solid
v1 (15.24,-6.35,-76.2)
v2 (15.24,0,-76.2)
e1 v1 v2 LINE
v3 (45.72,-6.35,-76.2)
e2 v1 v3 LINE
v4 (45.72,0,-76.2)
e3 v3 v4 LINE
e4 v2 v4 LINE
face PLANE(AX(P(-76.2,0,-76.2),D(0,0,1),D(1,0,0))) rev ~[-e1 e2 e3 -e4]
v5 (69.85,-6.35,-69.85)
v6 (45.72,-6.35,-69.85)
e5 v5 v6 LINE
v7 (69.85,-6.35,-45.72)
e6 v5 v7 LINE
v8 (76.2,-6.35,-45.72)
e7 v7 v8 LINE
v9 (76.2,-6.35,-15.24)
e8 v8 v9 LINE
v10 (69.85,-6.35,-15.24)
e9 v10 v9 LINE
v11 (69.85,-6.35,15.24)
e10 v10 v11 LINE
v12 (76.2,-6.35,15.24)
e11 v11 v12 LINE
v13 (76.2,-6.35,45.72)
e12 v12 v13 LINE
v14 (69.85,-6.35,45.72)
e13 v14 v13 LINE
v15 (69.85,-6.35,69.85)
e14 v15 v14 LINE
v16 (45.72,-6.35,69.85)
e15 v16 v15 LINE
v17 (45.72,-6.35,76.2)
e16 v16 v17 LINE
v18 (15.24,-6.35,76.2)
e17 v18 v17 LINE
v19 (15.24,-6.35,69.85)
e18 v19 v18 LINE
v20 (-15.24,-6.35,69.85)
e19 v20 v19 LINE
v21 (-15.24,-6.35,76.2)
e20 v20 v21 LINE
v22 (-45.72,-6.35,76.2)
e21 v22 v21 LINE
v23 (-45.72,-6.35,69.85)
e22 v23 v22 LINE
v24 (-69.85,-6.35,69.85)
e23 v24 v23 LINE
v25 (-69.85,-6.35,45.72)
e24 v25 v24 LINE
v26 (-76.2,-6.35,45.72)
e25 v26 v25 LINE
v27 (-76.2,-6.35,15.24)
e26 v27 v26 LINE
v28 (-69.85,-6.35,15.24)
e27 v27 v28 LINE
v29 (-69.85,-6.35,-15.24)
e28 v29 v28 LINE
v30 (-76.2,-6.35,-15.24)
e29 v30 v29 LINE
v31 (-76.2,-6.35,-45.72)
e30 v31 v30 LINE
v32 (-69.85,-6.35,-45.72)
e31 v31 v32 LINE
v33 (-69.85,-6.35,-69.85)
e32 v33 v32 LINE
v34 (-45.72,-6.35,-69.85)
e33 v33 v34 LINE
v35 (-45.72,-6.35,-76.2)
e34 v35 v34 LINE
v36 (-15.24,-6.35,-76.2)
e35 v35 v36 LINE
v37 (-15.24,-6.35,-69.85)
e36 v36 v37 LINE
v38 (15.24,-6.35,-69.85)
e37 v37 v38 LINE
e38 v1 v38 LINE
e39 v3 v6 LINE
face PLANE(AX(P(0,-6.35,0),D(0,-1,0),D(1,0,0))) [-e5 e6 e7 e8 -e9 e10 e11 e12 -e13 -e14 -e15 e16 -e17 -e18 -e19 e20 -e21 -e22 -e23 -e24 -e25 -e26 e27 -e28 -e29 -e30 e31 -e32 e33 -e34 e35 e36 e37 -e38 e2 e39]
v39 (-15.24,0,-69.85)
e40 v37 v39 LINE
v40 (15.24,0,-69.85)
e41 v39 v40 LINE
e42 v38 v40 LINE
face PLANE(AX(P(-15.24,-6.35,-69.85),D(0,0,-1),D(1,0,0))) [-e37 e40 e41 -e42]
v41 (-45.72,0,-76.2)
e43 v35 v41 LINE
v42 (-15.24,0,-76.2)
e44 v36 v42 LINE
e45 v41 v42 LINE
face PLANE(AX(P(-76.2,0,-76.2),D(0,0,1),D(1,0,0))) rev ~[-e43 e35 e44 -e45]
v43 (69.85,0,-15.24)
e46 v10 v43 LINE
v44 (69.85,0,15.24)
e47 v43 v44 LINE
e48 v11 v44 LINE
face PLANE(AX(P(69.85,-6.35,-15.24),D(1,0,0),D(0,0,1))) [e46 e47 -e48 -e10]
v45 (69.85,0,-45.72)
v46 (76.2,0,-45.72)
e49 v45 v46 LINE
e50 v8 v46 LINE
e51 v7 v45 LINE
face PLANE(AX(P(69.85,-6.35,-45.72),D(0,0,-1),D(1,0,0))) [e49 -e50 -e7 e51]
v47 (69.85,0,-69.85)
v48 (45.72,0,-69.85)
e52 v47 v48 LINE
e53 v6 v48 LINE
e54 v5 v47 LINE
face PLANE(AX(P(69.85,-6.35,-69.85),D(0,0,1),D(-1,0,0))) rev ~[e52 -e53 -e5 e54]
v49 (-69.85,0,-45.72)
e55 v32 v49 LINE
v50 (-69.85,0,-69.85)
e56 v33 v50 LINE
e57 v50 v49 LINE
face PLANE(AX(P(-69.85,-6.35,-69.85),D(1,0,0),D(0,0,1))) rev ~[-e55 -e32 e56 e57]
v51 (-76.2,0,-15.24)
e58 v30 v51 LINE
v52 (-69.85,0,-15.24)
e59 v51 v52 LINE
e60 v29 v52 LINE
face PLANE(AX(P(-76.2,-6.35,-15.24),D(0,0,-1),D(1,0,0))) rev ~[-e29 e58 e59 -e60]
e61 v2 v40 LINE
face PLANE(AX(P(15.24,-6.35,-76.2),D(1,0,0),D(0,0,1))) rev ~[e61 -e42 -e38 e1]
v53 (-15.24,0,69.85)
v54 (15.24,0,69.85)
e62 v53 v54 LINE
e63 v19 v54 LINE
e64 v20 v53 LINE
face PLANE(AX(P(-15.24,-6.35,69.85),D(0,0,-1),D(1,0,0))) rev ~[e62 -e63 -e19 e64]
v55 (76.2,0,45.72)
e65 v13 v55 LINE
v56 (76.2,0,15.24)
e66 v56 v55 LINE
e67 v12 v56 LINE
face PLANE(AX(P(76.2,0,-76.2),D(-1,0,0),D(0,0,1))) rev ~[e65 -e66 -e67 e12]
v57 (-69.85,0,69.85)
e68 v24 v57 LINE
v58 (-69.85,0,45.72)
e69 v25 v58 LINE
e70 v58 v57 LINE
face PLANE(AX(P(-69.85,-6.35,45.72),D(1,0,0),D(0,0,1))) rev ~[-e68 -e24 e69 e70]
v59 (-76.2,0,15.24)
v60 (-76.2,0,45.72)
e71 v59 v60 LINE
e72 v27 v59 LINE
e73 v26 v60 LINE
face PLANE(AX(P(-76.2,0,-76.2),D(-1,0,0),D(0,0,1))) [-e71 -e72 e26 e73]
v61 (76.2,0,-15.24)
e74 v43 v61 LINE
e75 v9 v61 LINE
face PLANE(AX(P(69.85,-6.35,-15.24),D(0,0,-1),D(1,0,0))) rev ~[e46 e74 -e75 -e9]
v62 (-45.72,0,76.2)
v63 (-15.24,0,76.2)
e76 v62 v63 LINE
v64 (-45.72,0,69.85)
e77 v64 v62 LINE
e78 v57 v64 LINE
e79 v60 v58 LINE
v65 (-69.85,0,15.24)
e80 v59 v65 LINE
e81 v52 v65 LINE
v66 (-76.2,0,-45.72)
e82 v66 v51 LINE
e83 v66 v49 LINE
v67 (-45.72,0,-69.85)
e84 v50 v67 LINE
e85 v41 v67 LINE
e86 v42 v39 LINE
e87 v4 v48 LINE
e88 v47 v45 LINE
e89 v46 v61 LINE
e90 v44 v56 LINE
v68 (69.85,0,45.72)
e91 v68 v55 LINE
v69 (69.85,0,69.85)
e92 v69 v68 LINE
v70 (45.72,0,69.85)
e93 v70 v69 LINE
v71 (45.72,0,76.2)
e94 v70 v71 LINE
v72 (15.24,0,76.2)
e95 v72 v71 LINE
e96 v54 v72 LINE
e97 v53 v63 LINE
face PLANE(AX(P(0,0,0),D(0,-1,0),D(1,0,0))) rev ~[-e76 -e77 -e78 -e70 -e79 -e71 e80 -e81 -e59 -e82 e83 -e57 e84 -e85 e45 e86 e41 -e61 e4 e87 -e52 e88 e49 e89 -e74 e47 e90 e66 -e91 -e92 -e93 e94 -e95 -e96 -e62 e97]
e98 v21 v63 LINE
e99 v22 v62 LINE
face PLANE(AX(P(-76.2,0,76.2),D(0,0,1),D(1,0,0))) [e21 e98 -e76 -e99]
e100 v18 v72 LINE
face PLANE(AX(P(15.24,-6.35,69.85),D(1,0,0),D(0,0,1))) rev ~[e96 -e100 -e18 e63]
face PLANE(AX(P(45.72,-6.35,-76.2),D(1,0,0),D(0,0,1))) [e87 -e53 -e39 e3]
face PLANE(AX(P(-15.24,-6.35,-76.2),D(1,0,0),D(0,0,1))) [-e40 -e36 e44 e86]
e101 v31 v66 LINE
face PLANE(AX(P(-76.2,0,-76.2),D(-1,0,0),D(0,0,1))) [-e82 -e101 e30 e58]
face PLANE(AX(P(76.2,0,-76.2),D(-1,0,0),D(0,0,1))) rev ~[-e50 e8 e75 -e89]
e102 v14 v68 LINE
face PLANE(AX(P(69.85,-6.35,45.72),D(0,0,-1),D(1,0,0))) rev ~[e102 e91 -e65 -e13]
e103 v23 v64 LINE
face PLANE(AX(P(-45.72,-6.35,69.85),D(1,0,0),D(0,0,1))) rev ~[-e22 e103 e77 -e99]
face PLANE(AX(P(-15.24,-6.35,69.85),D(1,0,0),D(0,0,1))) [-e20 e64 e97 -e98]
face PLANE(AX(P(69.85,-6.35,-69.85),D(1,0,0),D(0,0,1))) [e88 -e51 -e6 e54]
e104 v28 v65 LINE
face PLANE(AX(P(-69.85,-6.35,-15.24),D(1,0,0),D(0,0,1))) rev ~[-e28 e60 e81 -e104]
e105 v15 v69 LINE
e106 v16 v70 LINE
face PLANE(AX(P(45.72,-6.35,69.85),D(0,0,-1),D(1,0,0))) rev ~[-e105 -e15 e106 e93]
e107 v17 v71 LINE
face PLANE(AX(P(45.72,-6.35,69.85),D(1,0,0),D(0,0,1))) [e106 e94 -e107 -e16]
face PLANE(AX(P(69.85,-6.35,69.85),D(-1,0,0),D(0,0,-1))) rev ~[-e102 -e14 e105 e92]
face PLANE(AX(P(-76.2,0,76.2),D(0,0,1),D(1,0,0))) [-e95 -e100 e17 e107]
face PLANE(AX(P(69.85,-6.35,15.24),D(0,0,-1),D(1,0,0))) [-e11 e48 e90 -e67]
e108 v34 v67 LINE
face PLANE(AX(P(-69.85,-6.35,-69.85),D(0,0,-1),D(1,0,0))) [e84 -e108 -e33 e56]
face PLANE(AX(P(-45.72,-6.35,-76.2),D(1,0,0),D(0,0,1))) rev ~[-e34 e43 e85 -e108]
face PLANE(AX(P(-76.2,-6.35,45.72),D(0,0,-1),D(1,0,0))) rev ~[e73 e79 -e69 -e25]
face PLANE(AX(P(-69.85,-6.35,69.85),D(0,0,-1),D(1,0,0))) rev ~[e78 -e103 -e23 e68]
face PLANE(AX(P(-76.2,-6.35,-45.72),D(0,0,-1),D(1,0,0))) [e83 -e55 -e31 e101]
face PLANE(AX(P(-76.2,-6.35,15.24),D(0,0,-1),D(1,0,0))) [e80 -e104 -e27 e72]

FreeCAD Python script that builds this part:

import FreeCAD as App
import Part
import Sketcher
Q = App.Units.Quantity

doc = App.newDocument("Part")
body = doc.addObject("PartDesign::Body", "Body")

# Sketch on XZ plane
sketch1 = doc.addObject("Sketcher::SketchObject", "Sketch")
body.addObject(sketch1)
sketch1.AttachmentSupport = (doc.XZ_Plane, [""])
sketch1.MapMode = "FlatFace"
sketch1.addGeometry([
    Part.LineSegment(App.Vector(-76.2, 76.2, 0), App.Vector(-76.2, -76.2, 0)),
    Part.LineSegment(App.Vector(-76.2, -76.2, 0), App.Vector(76.2, -76.2, 0)),
    Part.LineSegment(App.Vector(76.2, -76.2, 0), App.Vector(76.2, 76.2, 0)),
    Part.LineSegment(App.Vector(76.2, 76.2, 0), App.Vector(-76.2, 76.2, 0)),
], False)
sketch1.addConstraint([
    Sketcher.Constraint("Coincident", 0, 2, 1, 1),
    Sketcher.Constraint("Coincident", 1, 2, 2, 1),
    Sketcher.Constraint("Coincident", 2, 2, 3, 1),
    Sketcher.Constraint("Coincident", 3, 2, 0, 1),
    Sketcher.Constraint("Vertical", 0),
    Sketcher.Constraint("Horizontal", 1),
    Sketcher.Constraint("Vertical", 2),
    Sketcher.Constraint("Horizontal", 3),
    Sketcher.Constraint("Symmetric", 0, 2, 2, 2, -1, 1),
    Sketcher.Constraint("Equal", 3, 0),
    Sketcher.Constraint("DistanceX", 1, 1, 1, 2, Q("6 in")),
])
pad1 = doc.addObject("PartDesign::Pad", "Pad")
body.addObject(pad1)
pad1.Profile = sketch1
pad1.Length = Q("0.25 in")

# Sketch on XZ plane
sketch2 = doc.addObject("Sketcher::SketchObject", "Sketch001")
body.addObject(sketch2)
sketch2.AttachmentSupport = (doc.XZ_Plane, [""])
sketch2.MapMode = "FlatFace"
sketch2.AttachmentOffset = App.Placement(App.Vector(0, 0, 0.25 * 25.4), App.Rotation())
sketch2.addGeometry([
    Part.LineSegment(App.Vector(-45.72, 69.85, 0), App.Vector(-45.72, 76.2, 0)),  # 0
    Part.LineSegment(App.Vector(-45.72, 76.2, 0), App.Vector(-76.2, 76.2, 0)),  # 1
    Part.LineSegment(App.Vector(-76.2, 76.2, 0), App.Vector(-76.2, 45.72, 0)),  # 2
    Part.LineSegment(App.Vector(-76.2, 45.72, 0), App.Vector(-69.85, 45.72, 0)),  # 3
    Part.LineSegment(App.Vector(-69.85, 45.72, 0), App.Vector(-69.85, 69.85, 0)),  # 4
    Part.LineSegment(App.Vector(-69.85, 69.85, 0), App.Vector(-45.72, 69.85, 0)),  # 5
    Part.LineSegment(App.Vector(-76.2, 15.24, 0), App.Vector(-76.2, -15.24, 0)),  # 6
    Part.LineSegment(App.Vector(-76.2, -15.24, 0), App.Vector(-69.85, -15.24, 0)),  # 7
    Part.LineSegment(App.Vector(-69.85, -15.24, 0), App.Vector(-69.85, 15.24, 0)),  # 8
    Part.LineSegment(App.Vector(-69.85, 15.24, 0), App.Vector(-76.2, 15.24, 0)),  # 9
    Part.LineSegment(App.Vector(-76.2, -45.72, 0), App.Vector(-76.2, -76.2, 0)),  # 10
    Part.LineSegment(App.Vector(-76.2, -76.2, 0), App.Vector(-45.72, -76.2, 0)),  # 11
    Part.LineSegment(App.Vector(-45.72, -76.2, 0), App.Vector(-45.72, -69.85, 0)),  # 12
    Part.LineSegment(App.Vector(-45.72, -69.85, 0), App.Vector(-69.85, -69.85, 0)),  # 13
    Part.LineSegment(App.Vector(-69.85, -69.85, 0), App.Vector(-69.85, -45.72, 0)),  # 14
    Part.LineSegment(App.Vector(-69.85, -45.72, 0), App.Vector(-76.2, -45.72, 0)),  # 15
    Part.LineSegment(App.Vector(-15.24, -69.85, 0), App.Vector(-15.24, -76.2, 0)),  # 16
    Part.LineSegment(App.Vector(-15.24, -76.2, 0), App.Vector(15.24, -76.2, 0)),  # 17
    Part.LineSegment(App.Vector(15.24, -76.2, 0), App.Vector(15.24, -69.85, 0)),  # 18
    Part.LineSegment(App.Vector(15.24, -69.85, 0), App.Vector(-15.24, -69.85, 0)),  # 19
    Part.LineSegment(App.Vector(45.72, -69.85, 0), App.Vector(45.72, -76.2, 0)),  # 20
    Part.LineSegment(App.Vector(45.72, -76.2, 0), App.Vector(76.2, -76.2, 0)),  # 21
    Part.LineSegment(App.Vector(76.2, -76.2, 0), App.Vector(76.2, -45.72, 0)),  # 22
    Part.LineSegment(App.Vector(76.2, -45.72, 0), App.Vector(69.85, -45.72, 0)),  # 23
    Part.LineSegment(App.Vector(69.85, -45.72, 0), App.Vector(69.85, -69.85, 0)),  # 24
    Part.LineSegment(App.Vector(69.85, -69.85, 0), App.Vector(45.72, -69.85, 0)),  # 25
    Part.LineSegment(App.Vector(69.85, 15.24, 0), App.Vector(69.85, -15.24, 0)),  # 26
    Part.LineSegment(App.Vector(69.85, -15.24, 0), App.Vector(76.2, -15.24, 0)),  # 27
    Part.LineSegment(App.Vector(76.2, -15.24, 0), App.Vector(76.2, 15.24, 0)),  # 28
    Part.LineSegment(App.Vector(76.2, 15.24, 0), App.Vector(69.85, 15.24, 0)),  # 29
    Part.LineSegment(App.Vector(69.85, 45.72, 0), App.Vector(76.2, 45.72, 0)),  # 30
    Part.LineSegment(App.Vector(76.2, 45.72, 0), App.Vector(76.2, 76.2, 0)),  # 31
    Part.LineSegment(App.Vector(76.2, 76.2, 0), App.Vector(45.72, 76.2, 0)),  # 32
    Part.LineSegment(App.Vector(45.72, 76.2, 0), App.Vector(45.72, 69.85, 0)),  # 33
    Part.LineSegment(App.Vector(45.72, 69.85, 0), App.Vector(69.85, 69.85, 0)),  # 34
    Part.LineSegment(App.Vector(69.85, 69.85, 0), App.Vector(69.85, 45.72, 0)),  # 35
    Part.LineSegment(App.Vector(-15.24, 76.2, 0), App.Vector(-15.24, 69.85, 0)),  # 36
    Part.LineSegment(App.Vector(-15.24, 69.85, 0), App.Vector(15.24, 69.85, 0)),  # 37
    Part.LineSegment(App.Vector(15.24, 69.85, 0), App.Vector(15.24, 76.2, 0)),  # 38
    Part.LineSegment(App.Vector(15.24, 76.2, 0), App.Vector(-15.24, 76.2, 0)),  # 39
], False)
sketch2.addConstraint([
    Sketcher.Constraint("Coincident", 0, 2, 1, 1),
    Sketcher.Constraint("Coincident", 1, 2, 2, 1),
    Sketcher.Constraint("Coincident", 2, 2, 3, 1),
    Sketcher.Constraint("Coincident", 3, 2, 4, 1),
    Sketcher.Constraint("Coincident", 4, 2, 5, 1),
    Sketcher.Constraint("Coincident", 5, 2, 0, 1),
    Sketcher.Constraint("Coincident", 6, 2, 7, 1),
    Sketcher.Constraint("Coincident", 7, 2, 8, 1),
    Sketcher.Constraint("Coincident", 8, 2, 9, 1),
    Sketcher.Constraint("Coincident", 9, 2, 6, 1),
    Sketcher.Constraint("Coincident", 10, 2, 11, 1),
    Sketcher.Constraint("Coincident", 11, 2, 12, 1),
    Sketcher.Constraint("Coincident", 12, 2, 13, 1),
    Sketcher.Constraint("Coincident", 13, 2, 14, 1),
    Sketcher.Constraint("Coincident", 14, 2, 15, 1),
    Sketcher.Constraint("Coincident", 15, 2, 10, 1),
    Sketcher.Constraint("Coincident", 16, 2, 17, 1),
    Sketcher.Constraint("Coincident", 17, 2, 18, 1),
    Sketcher.Constraint("Coincident", 18, 2, 19, 1),
    Sketcher.Constraint("Coincident", 19, 2, 16, 1),
    Sketcher.Constraint("Coincident", 20, 2, 21, 1),
    Sketcher.Constraint("Coincident", 21, 2, 22, 1),
    Sketcher.Constraint("Coincident", 22, 2, 23, 1),
    Sketcher.Constraint("Coincident", 23, 2, 24, 1),
    Sketcher.Constraint("Coincident", 24, 2, 25, 1),
    Sketcher.Constraint("Coincident", 25, 2, 20, 1),
    Sketcher.Constraint("Coincident", 26, 2, 27, 1),
    Sketcher.Constraint("Coincident", 27, 2, 28, 1),
    Sketcher.Constraint("Coincident", 28, 2, 29, 1),
    Sketcher.Constraint("Coincident", 29, 2, 26, 1),
    Sketcher.Constraint("Coincident", 30, 2, 31, 1),
    Sketcher.Constraint("Coincident", 31, 2, 32, 1),
    Sketcher.Constraint("Coincident", 32, 2, 33, 1),
    Sketcher.Constraint("Coincident", 33, 2, 34, 1),
    Sketcher.Constraint("Coincident", 34, 2, 35, 1),
    Sketcher.Constraint("Coincident", 35, 2, 30, 1),
    Sketcher.Constraint("Coincident", 36, 2, 37, 1),
    Sketcher.Constraint("Coincident", 37, 2, 38, 1),
    Sketcher.Constraint("Coincident", 38, 2, 39, 1),
    Sketcher.Constraint("Coincident", 39, 2, 36, 1),
    Sketcher.Constraint("Vertical", 0),
    Sketcher.Constraint("Horizontal", 1),
    Sketcher.Constraint("Vertical", 2),
    Sketcher.Constraint("Horizontal", 3),
    Sketcher.Constraint("Vertical", 4),
    Sketcher.Constraint("Horizontal", 5),
    Sketcher.Constraint("Vertical", 6),
    Sketcher.Constraint("Horizontal", 7),
    Sketcher.Constraint("Vertical", 8),
    Sketcher.Constraint("Horizontal", 9),
    Sketcher.Constraint("Vertical", 10),
    Sketcher.Constraint("Horizontal", 11),
    Sketcher.Constraint("Vertical", 12),
    Sketcher.Constraint("Horizontal", 13),
    Sketcher.Constraint("Vertical", 14),
    Sketcher.Constraint("Horizontal", 15),
    Sketcher.Constraint("Vertical", 16),
    Sketcher.Constraint("Horizontal", 17),
    Sketcher.Constraint("Vertical", 18),
    Sketcher.Constraint("Horizontal", 19),
    Sketcher.Constraint("Vertical", 20),
    Sketcher.Constraint("Horizontal", 21),
    Sketcher.Constraint("Vertical", 22),
    Sketcher.Constraint("Horizontal", 23),
    Sketcher.Constraint("Vertical", 24),
    Sketcher.Constraint("Horizontal", 25),
    Sketcher.Constraint("Vertical", 26),
    Sketcher.Constraint("Horizontal", 27),
    Sketcher.Constraint("Vertical", 28),
    Sketcher.Constraint("Horizontal", 29),
    Sketcher.Constraint("Horizontal", 30),
    Sketcher.Constraint("Vertical", 31),
    Sketcher.Constraint("Horizontal", 32),
    Sketcher.Constraint("Vertical", 33),
    Sketcher.Constraint("Horizontal", 34),
    Sketcher.Constraint("Vertical", 35),
    Sketcher.Constraint("Vertical", 36),
    Sketcher.Constraint("Horizontal", 37),
    Sketcher.Constraint("Vertical", 38),
    Sketcher.Constraint("Horizontal", 39),
    Sketcher.Constraint("Symmetric", 0, 2, 20, 2, -1, 1),
    Sketcher.Constraint("Symmetric", 2, 2, 22, 2, -1, 1),
    Sketcher.Constraint("Symmetric", 4, 2, 24, 2, -1, 1),
    Sketcher.Constraint("Symmetric", 8, 2, 26, 2, -1, 1),
    Sketcher.Constraint("Symmetric", 6, 2, 28, 2, -1, 1),
    Sketcher.Constraint("Symmetric", 15, 2, 30, 2, -1, 1),
    Sketcher.Constraint("Symmetric", 11, 2, 32, 2, -1, 1),
    Sketcher.Constraint("Symmetric", 13, 2, 34, 2, -1, 1),
    Sketcher.Constraint("Symmetric", 18, 2, 36, 2, -1, 1),
    Sketcher.Constraint("Symmetric", 16, 2, 38, 2, -1, 1),
    Sketcher.Constraint("Symmetric", 11, 2, 20, 2, -2),
    Sketcher.Constraint("Symmetric", 15, 2, 22, 2, -2),
    Sketcher.Constraint("Symmetric", 13, 2, 24, 2, -2),
    Sketcher.Constraint("Horizontal", 11, 2, 16, 2),
    Sketcher.Constraint("Horizontal", 13, 2, 18, 2),
    Sketcher.Constraint("Horizontal", 7, 2, 26, 2),
    Sketcher.Constraint("Vertical", 2, 2, 6, 2),
    Sketcher.Constraint("Vertical", 4, 2, 7, 2),
    Sketcher.Constraint("Vertical", 19, 2, 36, 2),
    Sketcher.Constraint("Equal", 11, 17),
    Sketcher.Constraint("Equal", 30, 0),
    Sketcher.Constraint("Equal", 39, 2),
    Sketcher.Constraint("Equal", 2, 6),
    Sketcher.Constraint("DistanceX", 1, 2, 1, 1, Q("1.2 in")),
    Sketcher.Constraint("DistanceY", -1, 1, 0, 2, Q("3 in")),
    Sketcher.Constraint("DistanceX", 1, 2, -1, 1, Q("3 in")),
    Sketcher.Constraint("DistanceX", 3, 1, 3, 2, Q("0.25 in")),
])
pocket1 = doc.addObject("PartDesign::Pocket", "Pocket")
body.addObject(pocket1)
pocket1.Profile = sketch2
pocket1.Type = "ThroughAll"

doc.recompute()
